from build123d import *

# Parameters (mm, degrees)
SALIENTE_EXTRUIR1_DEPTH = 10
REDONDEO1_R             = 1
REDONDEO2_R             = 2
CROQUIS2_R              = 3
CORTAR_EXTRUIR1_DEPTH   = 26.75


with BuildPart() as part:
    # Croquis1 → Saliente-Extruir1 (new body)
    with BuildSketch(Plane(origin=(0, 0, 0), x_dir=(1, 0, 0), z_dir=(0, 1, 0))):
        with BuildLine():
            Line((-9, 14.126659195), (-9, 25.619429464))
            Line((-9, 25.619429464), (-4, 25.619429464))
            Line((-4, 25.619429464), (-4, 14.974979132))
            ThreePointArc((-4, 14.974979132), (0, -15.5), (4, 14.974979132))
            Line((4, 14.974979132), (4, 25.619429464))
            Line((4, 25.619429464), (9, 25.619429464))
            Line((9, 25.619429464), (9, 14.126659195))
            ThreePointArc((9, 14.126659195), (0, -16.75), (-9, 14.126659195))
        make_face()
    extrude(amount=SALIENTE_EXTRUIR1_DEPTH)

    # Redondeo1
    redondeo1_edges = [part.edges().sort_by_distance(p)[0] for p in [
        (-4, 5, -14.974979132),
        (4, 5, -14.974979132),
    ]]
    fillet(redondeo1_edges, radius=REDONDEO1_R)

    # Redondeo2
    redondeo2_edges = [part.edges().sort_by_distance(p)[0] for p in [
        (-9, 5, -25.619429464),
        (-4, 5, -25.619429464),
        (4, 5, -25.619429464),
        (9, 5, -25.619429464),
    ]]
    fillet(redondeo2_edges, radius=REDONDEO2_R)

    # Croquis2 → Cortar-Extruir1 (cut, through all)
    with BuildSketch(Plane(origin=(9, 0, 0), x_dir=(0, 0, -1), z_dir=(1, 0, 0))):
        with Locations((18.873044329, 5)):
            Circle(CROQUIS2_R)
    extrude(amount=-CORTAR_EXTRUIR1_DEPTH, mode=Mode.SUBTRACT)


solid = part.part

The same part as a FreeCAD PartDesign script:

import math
import FreeCAD as App
import Part
import Sketcher

V = App.Vector
Q = App.Units.Quantity


def edges_at(feature, points):
    """Names of the edges that pass closest to the given points."""
    edges = feature.Shape.Edges
    near = lambda p: min(range(len(edges)), key=lambda i: edges[i].distToShape(Part.Vertex(*p))[0])
    return sorted({f"Edge{near(p) + 1}" for p in points})

doc = App.newDocument("Part")
params = doc.addObject("Spreadsheet::Sheet", "Params")
for row, (alias, value) in enumerate([
    ("sketch1_radius", "15.5 mm"),
    ("sketch1_width", "5 mm"),
    ("sketch1_radius2", "16.75 mm"),
    ("pad1_length", "10 mm"),
    ("fillet_radius", "1 mm"),
    ("fillet2_radius", "2 mm"),
    ("sketch2_diameter", "6 mm"),
], start=1):
    params.set(f"A{row}", alias)
    params.set(f"B{row}", "=" + value)
    params.setAlias(f"B{row}", alias)

body = doc.addObject("PartDesign::Body", "Body")

# Sketch on XZ plane
sketch1 = doc.addObject("Sketcher::SketchObject", "Sketch")
body.addObject(sketch1)
sketch1.AttachmentSupport = (doc.XZ_Plane, [""])
sketch1.MapMode = "FlatFace"
sketch1.addGeometry(Part.LineSegment(V(-9, -25.619429, 0), V(-9, -14.126659, 0)), False)
sketch1.addGeometry(Part.ArcOfCircle(Part.Circle(V(0, 0, 0), V(0, 0, 1), 16.75), math.radians(-57.499061), math.radians(237.499061)), False)
sketch1.addGeometry(Part.LineSegment(V(9, -14.126659, 0), V(9, -25.619429, 0)), False)
sketch1.addGeometry(Part.LineSegment(V(9, -25.619429, 0), V(4, -25.619429, 0)), False)
sketch1.addGeometry(Part.LineSegment(V(4, -25.619429, 0), V(4, -14.974979, 0)), False)
sketch1.addGeometry(Part.ArcOfCircle(Part.Circle(V(0, 0, 0), V(0, 0, 1), 15.5), math.radians(-75.044752), math.radians(255.044752)), False)
sketch1.addGeometry(Part.LineSegment(V(-4, -14.974979, 0), V(-4, -25.619429, 0)), False)
sketch1.addGeometry(Part.LineSegment(V(-4, -25.619429, 0), V(-9, -25.619429, 0)), False)
sketch1.addConstraint(Sketcher.Constraint("Coincident", 0, 2, 1, 2))
sketch1.addConstraint(Sketcher.Constraint("Coincident", 1, 1, 2, 1))
sketch1.addConstraint(Sketcher.Constraint("Coincident", 2, 2, 3, 1))
sketch1.addConstraint(Sketcher.Constraint("Coincident", 3, 2, 4, 1))
sketch1.addConstraint(Sketcher.Constraint("Coincident", 4, 2, 5, 1))
sketch1.addConstraint(Sketcher.Constraint("Coincident", 5, 2, 6, 1))
sketch1.addConstraint(Sketcher.Constraint("Coincident", 6, 2, 7, 1))
sketch1.addConstraint(Sketcher.Constraint("Coincident", 7, 2, 0, 1))
sketch1.addConstraint(Sketcher.Constraint("Vertical", 0))
sketch1.addConstraint(Sketcher.Constraint("Vertical", 2))
sketch1.addConstraint(Sketcher.Constraint("Horizontal", 3))
sketch1.addConstraint(Sketcher.Constraint("Vertical", 4))
sketch1.addConstraint(Sketcher.Constraint("Vertical", 6))
sketch1.addConstraint(Sketcher.Constraint("Horizontal", 7))
sketch1.addConstraint(Sketcher.Constraint("Coincident", 1, 3, -1, 1))
sketch1.addConstraint(Sketcher.Constraint("Coincident", 5, 3, -1, 1))
sketch1.addConstraint(Sketcher.Constraint("Symmetric", 3, 2, 6, 2, -2))
sketch1.addConstraint(Sketcher.Constraint("Horizontal", 0, 2, 1, 1))
sketch1.addConstraint(Sketcher.Constraint("Radius", 5, Q("15.5 mm")))
sketch1.addConstraint(Sketcher.Constraint("DistanceX", 3, 2, 3, 1, Q("5 mm")))
sketch1.addConstraint(Sketcher.Constraint("Radius", 1, Q("16.75 mm")))
sketch1.addConstraint(Sketcher.Constraint("DistanceX", 0, 2, -1, 1, Q("9 mm")))
sketch1.addConstraint(Sketcher.Constraint("DistanceY", 0, 1, 0, 2, Q("11.49277 mm")))
sketch1.setExpression("Constraints[18]", "Params.sketch1_radius")
sketch1.setExpression("Constraints[19]", "Params.sketch1_width")
sketch1.setExpression("Constraints[20]", "Params.sketch1_radius2")
pad1 = doc.addObject("PartDesign::Pad", "Pad")
body.addObject(pad1)
pad1.Profile = sketch1
pad1.setExpression("Length", "Params.pad1_length")
pad1.Reversed = True
doc.recompute()

fillet = doc.addObject("PartDesign::Fillet", "Fillet")
body.addObject(fillet)
fillet.Base = (pad1, edges_at(pad1, [(-4, 5, -14.975), (4, 5, -14.975)]))
fillet.setExpression("Radius", "Params.fillet_radius")
doc.recompute()

fillet2 = doc.addObject("PartDesign::Fillet", "Fillet001")
body.addObject(fillet2)
fillet2.Base = (fillet, edges_at(fillet, [
    (-9, 5, -25.619),
    (-4, 5, -25.619),
    (4, 5, -25.619),
    (9, 5, -25.619),
]))
fillet2.setExpression("Radius", "Params.fillet2_radius")

# Sketch on YZ plane
sketch2 = doc.addObject("Sketcher::SketchObject", "Sketch001")
body.addObject(sketch2)
sketch2.AttachmentSupport = (doc.YZ_Plane, [""])
sketch2.MapMode = "FlatFace"
sketch2.AttachmentOffset = App.Placement(V(0, 0, 9), App.Rotation())
sketch2.addGeometry(Part.Circle(V(5, -18.873044, 0), V(0, 0, 1), 3), False)
sketch2.addConstraint(Sketcher.Constraint("Diameter", 0, Q("6 mm")))
sketch2.addConstraint(Sketcher.Constraint("DistanceX", -1, 1, 0, 3, Q("5 mm")))
sketch2.addConstraint(Sketcher.Constraint("DistanceY", 0, 3, -1, 1, Q("18.873044 mm")))
sketch2.setExpression("Constraints[0]", "Params.sketch2_diameter")
pocket1 = doc.addObject("PartDesign::Pocket", "Pocket")
body.addObject(pocket1)
pocket1.Profile = sketch2
pocket1.Type = "ThroughAll"

doc.recompute()
